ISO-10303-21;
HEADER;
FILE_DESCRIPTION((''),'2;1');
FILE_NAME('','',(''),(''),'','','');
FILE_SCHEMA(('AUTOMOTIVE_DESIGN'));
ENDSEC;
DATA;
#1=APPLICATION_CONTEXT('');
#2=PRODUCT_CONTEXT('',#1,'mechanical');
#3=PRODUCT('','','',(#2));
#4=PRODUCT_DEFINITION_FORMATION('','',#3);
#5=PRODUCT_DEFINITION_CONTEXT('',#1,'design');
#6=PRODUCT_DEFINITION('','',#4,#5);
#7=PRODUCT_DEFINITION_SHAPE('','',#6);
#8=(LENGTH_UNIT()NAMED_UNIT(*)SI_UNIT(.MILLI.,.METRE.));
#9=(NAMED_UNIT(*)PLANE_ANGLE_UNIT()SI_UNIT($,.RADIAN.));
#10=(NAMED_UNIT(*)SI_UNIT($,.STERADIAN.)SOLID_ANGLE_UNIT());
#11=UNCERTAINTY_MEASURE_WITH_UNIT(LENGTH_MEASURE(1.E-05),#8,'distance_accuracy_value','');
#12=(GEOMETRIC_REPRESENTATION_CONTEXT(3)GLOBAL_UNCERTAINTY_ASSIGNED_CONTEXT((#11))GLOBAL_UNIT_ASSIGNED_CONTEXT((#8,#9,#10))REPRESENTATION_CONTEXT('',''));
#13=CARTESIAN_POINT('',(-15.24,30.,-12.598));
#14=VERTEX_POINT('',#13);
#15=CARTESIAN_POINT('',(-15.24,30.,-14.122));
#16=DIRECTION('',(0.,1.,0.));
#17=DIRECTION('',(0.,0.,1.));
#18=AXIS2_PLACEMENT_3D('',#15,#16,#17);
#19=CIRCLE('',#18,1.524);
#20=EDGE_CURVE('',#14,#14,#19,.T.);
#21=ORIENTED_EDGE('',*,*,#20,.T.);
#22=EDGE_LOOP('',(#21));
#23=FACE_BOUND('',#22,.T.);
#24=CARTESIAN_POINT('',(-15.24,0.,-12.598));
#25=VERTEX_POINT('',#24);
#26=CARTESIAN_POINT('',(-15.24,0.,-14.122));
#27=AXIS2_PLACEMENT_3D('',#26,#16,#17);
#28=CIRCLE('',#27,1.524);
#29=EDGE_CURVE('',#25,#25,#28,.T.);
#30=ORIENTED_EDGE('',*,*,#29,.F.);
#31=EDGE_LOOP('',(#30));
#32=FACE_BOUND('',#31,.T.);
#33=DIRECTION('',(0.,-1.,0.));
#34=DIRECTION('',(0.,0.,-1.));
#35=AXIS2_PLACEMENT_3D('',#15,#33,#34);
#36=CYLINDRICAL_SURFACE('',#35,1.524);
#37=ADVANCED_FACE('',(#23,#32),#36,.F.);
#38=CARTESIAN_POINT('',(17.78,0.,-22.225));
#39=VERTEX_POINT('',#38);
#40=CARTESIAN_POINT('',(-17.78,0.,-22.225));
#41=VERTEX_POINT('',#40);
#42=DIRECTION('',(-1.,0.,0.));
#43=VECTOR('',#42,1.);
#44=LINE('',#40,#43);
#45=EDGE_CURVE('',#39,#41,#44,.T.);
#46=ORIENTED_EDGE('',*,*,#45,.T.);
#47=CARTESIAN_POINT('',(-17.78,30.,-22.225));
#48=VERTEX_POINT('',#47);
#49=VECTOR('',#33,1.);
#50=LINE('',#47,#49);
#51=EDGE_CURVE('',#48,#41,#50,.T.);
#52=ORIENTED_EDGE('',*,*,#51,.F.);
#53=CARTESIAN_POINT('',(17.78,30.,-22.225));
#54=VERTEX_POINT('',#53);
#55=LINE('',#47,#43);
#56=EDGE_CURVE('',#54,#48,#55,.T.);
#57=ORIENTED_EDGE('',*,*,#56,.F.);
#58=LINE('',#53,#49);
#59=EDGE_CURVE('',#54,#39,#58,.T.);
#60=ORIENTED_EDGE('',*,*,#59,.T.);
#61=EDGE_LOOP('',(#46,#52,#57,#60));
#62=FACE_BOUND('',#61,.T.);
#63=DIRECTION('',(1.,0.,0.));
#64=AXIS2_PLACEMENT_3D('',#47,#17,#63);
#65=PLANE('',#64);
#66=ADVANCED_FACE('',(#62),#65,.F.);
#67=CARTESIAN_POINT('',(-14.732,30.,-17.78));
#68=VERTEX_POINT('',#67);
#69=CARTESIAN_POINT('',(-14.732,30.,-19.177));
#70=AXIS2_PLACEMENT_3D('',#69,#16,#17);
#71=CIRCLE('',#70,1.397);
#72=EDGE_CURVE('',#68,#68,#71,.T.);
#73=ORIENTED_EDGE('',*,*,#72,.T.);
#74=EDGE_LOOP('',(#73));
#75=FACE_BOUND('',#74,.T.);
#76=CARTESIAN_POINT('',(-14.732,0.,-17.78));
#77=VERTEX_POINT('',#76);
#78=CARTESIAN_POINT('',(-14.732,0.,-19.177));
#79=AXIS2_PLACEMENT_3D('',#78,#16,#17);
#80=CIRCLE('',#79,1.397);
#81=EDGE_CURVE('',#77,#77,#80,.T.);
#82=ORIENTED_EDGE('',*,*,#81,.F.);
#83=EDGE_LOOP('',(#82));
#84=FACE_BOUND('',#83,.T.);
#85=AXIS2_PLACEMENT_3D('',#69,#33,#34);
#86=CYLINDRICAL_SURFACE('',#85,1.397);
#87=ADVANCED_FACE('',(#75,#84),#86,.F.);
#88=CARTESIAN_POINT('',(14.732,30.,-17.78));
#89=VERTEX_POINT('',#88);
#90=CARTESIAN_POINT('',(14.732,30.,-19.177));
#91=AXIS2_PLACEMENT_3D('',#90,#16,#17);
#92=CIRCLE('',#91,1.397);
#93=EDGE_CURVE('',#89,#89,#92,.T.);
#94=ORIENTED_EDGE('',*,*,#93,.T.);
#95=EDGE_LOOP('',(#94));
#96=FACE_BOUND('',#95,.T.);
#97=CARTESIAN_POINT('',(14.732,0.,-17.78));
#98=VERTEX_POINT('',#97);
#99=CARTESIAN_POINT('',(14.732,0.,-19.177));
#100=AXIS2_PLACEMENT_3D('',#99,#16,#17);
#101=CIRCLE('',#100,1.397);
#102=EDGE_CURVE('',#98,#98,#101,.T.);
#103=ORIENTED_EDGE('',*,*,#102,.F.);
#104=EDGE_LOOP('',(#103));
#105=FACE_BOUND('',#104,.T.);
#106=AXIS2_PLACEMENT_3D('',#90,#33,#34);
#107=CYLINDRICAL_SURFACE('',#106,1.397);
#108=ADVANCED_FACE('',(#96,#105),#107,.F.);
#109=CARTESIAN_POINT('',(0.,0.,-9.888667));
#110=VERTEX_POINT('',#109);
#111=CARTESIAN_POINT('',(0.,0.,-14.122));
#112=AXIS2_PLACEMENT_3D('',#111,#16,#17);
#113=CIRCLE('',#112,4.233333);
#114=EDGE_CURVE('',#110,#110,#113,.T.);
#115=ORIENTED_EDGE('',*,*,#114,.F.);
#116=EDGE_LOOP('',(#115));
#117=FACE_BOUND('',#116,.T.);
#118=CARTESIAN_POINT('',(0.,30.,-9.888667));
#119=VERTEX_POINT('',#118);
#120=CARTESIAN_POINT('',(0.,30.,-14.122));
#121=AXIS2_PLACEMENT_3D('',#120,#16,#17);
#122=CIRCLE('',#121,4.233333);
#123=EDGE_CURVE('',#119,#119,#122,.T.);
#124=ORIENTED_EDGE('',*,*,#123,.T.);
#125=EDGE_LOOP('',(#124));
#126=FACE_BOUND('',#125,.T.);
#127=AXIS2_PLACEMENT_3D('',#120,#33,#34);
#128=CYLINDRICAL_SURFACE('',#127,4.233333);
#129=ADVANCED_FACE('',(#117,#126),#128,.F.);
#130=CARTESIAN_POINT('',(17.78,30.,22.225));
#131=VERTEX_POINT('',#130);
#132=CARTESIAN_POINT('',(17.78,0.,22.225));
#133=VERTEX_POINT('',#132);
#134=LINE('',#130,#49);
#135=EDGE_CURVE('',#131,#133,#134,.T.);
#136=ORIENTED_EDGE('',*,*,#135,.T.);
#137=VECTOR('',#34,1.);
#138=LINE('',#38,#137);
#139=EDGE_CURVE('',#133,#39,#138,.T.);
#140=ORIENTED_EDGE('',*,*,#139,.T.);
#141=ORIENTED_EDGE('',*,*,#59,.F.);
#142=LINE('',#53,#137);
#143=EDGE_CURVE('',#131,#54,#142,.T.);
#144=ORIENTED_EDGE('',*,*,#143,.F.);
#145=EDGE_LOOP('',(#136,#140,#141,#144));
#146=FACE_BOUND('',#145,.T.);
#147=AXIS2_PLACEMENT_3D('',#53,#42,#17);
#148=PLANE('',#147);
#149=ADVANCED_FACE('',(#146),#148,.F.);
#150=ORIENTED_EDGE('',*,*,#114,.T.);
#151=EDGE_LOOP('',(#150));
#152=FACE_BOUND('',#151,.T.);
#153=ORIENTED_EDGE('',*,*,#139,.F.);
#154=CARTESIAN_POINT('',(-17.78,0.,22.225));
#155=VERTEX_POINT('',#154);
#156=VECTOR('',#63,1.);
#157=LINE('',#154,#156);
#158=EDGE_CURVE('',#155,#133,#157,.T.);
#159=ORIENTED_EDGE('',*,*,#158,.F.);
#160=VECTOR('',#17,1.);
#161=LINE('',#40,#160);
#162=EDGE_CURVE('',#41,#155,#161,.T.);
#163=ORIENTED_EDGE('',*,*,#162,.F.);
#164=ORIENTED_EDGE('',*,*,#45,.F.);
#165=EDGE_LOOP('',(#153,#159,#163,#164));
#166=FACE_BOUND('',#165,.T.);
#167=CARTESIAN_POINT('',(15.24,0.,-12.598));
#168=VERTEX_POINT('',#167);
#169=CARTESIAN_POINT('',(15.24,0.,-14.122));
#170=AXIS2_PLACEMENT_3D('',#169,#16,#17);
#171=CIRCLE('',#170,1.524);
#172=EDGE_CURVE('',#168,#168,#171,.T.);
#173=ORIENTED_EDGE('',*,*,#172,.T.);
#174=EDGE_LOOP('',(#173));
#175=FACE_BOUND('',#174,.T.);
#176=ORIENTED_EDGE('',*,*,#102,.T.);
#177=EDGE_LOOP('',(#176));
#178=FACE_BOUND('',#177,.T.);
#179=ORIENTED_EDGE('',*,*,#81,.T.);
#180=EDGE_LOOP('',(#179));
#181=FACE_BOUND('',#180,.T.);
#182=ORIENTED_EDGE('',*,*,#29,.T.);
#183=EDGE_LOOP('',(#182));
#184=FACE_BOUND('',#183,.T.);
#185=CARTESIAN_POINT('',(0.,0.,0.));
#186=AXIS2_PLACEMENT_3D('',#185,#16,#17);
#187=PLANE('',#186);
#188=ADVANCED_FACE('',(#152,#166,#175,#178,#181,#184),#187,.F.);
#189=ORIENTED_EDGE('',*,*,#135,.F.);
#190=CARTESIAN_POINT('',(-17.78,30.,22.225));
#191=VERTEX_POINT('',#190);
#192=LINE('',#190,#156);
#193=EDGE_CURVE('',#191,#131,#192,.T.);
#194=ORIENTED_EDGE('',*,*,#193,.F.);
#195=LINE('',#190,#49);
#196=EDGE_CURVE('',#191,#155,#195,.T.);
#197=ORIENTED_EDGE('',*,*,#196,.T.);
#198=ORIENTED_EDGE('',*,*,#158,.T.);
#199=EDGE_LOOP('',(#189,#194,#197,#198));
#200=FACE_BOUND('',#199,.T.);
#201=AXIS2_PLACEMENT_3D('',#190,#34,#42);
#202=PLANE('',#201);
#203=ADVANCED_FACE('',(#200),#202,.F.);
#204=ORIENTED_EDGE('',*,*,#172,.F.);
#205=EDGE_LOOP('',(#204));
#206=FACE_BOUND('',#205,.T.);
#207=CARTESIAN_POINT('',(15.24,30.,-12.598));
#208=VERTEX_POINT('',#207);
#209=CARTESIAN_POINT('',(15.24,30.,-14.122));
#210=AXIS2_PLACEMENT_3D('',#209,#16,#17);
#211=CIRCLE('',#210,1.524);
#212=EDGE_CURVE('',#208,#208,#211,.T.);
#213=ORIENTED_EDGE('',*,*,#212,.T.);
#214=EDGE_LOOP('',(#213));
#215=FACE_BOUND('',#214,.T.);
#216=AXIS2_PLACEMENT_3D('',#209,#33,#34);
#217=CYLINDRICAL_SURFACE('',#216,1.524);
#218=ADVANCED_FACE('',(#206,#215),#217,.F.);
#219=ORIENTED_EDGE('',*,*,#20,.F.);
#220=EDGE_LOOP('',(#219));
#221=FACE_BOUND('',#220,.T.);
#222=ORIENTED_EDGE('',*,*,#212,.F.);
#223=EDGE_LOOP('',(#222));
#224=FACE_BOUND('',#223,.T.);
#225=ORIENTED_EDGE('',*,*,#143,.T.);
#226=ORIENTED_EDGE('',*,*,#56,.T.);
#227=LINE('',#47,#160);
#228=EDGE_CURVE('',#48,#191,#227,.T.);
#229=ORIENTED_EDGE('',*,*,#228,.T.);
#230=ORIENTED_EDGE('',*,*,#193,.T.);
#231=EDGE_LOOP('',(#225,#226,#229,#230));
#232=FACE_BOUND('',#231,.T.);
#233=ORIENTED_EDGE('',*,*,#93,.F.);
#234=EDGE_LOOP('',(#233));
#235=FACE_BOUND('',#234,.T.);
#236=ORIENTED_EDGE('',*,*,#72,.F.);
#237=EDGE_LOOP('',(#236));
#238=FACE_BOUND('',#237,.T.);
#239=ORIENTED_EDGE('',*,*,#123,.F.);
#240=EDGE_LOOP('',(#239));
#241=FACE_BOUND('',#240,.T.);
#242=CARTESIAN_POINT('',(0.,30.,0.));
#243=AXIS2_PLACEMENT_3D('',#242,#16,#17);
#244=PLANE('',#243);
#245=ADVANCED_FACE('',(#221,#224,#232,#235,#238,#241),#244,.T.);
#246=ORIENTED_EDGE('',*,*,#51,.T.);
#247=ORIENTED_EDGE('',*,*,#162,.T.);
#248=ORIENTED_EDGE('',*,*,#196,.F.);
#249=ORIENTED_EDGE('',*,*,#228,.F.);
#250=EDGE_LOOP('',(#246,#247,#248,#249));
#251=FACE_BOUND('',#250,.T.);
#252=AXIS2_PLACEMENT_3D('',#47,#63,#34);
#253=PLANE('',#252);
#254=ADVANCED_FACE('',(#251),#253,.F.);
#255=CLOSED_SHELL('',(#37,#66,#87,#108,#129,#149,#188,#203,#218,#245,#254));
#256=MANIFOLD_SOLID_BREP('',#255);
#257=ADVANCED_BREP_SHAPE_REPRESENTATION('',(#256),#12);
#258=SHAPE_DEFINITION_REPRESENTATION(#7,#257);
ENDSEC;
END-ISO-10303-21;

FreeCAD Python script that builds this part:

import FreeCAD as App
import Part
import Sketcher
Q = App.Units.Quantity


def add_polygon(sketch, points):
    """Adds a closed chain of lines whose ends are joined by coincident constraints."""
    first, n = sketch.GeometryCount, len(points)
    for a, b in zip(points, points[1:] + points[:1]):
        sketch.addGeometry(Part.LineSegment(App.Vector(*a, 0), App.Vector(*b, 0)), False)
    for i in range(n):
        sketch.addConstraint(Sketcher.Constraint("Coincident", first + i, 2, first + (i + 1) % n, 1))

doc = App.newDocument("Part")
body = doc.addObject("PartDesign::Body", "Body")

# Sketch on XZ plane
sketch1 = body.newObject("Sketcher::SketchObject", "Sketch")
sketch1.AttachmentSupport = (doc.getObject("XZ_Plane"), [""])
sketch1.MapMode = "FlatFace"
add_polygon(sketch1, [(-17.8, -22.2), (-17.8, 22.2), (17.8, 22.2), (17.8, -22.2)])  # lines 0-3
sketch1.addGeometry(Part.Circle(App.Vector(-15.2, -14.1, 0), App.Vector(0, 0, 1), 1.5), False)  # 4
sketch1.addGeometry(Part.Circle(App.Vector(0, -14.1, 0), App.Vector(0, 0, 1), 4.2), False)  # 5
sketch1.addGeometry(Part.Circle(App.Vector(15.2, -14.1, 0), App.Vector(0, 0, 1), 1.5), False)  # 6
sketch1.addGeometry(Part.Circle(App.Vector(-14.7, -19.2, 0), App.Vector(0, 0, 1), 1.4), False)  # 7
sketch1.addGeometry(Part.Circle(App.Vector(14.7, -19.2, 0), App.Vector(0, 0, 1), 1.4), False)  # 8
sketch1.addConstraint([
    Sketcher.Constraint("Vertical", 0),
    Sketcher.Constraint("Horizontal", 1),
    Sketcher.Constraint("Vertical", 2),
    Sketcher.Constraint("Horizontal", 3),
    Sketcher.Constraint("Equal", 4, 6),
    Sketcher.Constraint("Equal", 7, 8),
    Sketcher.Constraint("Symmetric", 0, 2, 2, 2, -1, 1),
    Sketcher.Constraint("Symmetric", 4, 3, 6, 3, -2),
    Sketcher.Constraint("Symmetric", 7, 3, 8, 3, -2),
    Sketcher.Constraint("PointOnObject", 5, 3, -2),
    Sketcher.Constraint("Horizontal", 4, 3, 5, 3),
    Sketcher.Constraint("Diameter", 4, Q("0.12 in")),
    Sketcher.Constraint("Diameter", 7, Q("0.11 in")),
    Sketcher.Constraint("DistanceX", 1, 1, 1, 2, Q("1.4 in")),
    Sketcher.Constraint("DistanceY", 0, 1, 0, 2, Q("1.75 in")),
    Sketcher.Constraint("DistanceX", 4, 3, -1, 1, Q("0.6 in")),
    Sketcher.Constraint("DistanceX", 7, 3, -1, 1, Q("0.58 in")),
    Sketcher.Constraint("DistanceY", 7, 3, 0, 2, Q("1.63 in")),
    Sketcher.Constraint("Diameter", 5, 8.466667),
    Sketcher.Constraint("DistanceY", 4, 3, -1, 1, 14.122),
])
pad1 = body.newObject("PartDesign::Pad", "Pad")
pad1.Profile = sketch1
pad1.Length = 30
pad1.Reversed = True

doc.recompute()
